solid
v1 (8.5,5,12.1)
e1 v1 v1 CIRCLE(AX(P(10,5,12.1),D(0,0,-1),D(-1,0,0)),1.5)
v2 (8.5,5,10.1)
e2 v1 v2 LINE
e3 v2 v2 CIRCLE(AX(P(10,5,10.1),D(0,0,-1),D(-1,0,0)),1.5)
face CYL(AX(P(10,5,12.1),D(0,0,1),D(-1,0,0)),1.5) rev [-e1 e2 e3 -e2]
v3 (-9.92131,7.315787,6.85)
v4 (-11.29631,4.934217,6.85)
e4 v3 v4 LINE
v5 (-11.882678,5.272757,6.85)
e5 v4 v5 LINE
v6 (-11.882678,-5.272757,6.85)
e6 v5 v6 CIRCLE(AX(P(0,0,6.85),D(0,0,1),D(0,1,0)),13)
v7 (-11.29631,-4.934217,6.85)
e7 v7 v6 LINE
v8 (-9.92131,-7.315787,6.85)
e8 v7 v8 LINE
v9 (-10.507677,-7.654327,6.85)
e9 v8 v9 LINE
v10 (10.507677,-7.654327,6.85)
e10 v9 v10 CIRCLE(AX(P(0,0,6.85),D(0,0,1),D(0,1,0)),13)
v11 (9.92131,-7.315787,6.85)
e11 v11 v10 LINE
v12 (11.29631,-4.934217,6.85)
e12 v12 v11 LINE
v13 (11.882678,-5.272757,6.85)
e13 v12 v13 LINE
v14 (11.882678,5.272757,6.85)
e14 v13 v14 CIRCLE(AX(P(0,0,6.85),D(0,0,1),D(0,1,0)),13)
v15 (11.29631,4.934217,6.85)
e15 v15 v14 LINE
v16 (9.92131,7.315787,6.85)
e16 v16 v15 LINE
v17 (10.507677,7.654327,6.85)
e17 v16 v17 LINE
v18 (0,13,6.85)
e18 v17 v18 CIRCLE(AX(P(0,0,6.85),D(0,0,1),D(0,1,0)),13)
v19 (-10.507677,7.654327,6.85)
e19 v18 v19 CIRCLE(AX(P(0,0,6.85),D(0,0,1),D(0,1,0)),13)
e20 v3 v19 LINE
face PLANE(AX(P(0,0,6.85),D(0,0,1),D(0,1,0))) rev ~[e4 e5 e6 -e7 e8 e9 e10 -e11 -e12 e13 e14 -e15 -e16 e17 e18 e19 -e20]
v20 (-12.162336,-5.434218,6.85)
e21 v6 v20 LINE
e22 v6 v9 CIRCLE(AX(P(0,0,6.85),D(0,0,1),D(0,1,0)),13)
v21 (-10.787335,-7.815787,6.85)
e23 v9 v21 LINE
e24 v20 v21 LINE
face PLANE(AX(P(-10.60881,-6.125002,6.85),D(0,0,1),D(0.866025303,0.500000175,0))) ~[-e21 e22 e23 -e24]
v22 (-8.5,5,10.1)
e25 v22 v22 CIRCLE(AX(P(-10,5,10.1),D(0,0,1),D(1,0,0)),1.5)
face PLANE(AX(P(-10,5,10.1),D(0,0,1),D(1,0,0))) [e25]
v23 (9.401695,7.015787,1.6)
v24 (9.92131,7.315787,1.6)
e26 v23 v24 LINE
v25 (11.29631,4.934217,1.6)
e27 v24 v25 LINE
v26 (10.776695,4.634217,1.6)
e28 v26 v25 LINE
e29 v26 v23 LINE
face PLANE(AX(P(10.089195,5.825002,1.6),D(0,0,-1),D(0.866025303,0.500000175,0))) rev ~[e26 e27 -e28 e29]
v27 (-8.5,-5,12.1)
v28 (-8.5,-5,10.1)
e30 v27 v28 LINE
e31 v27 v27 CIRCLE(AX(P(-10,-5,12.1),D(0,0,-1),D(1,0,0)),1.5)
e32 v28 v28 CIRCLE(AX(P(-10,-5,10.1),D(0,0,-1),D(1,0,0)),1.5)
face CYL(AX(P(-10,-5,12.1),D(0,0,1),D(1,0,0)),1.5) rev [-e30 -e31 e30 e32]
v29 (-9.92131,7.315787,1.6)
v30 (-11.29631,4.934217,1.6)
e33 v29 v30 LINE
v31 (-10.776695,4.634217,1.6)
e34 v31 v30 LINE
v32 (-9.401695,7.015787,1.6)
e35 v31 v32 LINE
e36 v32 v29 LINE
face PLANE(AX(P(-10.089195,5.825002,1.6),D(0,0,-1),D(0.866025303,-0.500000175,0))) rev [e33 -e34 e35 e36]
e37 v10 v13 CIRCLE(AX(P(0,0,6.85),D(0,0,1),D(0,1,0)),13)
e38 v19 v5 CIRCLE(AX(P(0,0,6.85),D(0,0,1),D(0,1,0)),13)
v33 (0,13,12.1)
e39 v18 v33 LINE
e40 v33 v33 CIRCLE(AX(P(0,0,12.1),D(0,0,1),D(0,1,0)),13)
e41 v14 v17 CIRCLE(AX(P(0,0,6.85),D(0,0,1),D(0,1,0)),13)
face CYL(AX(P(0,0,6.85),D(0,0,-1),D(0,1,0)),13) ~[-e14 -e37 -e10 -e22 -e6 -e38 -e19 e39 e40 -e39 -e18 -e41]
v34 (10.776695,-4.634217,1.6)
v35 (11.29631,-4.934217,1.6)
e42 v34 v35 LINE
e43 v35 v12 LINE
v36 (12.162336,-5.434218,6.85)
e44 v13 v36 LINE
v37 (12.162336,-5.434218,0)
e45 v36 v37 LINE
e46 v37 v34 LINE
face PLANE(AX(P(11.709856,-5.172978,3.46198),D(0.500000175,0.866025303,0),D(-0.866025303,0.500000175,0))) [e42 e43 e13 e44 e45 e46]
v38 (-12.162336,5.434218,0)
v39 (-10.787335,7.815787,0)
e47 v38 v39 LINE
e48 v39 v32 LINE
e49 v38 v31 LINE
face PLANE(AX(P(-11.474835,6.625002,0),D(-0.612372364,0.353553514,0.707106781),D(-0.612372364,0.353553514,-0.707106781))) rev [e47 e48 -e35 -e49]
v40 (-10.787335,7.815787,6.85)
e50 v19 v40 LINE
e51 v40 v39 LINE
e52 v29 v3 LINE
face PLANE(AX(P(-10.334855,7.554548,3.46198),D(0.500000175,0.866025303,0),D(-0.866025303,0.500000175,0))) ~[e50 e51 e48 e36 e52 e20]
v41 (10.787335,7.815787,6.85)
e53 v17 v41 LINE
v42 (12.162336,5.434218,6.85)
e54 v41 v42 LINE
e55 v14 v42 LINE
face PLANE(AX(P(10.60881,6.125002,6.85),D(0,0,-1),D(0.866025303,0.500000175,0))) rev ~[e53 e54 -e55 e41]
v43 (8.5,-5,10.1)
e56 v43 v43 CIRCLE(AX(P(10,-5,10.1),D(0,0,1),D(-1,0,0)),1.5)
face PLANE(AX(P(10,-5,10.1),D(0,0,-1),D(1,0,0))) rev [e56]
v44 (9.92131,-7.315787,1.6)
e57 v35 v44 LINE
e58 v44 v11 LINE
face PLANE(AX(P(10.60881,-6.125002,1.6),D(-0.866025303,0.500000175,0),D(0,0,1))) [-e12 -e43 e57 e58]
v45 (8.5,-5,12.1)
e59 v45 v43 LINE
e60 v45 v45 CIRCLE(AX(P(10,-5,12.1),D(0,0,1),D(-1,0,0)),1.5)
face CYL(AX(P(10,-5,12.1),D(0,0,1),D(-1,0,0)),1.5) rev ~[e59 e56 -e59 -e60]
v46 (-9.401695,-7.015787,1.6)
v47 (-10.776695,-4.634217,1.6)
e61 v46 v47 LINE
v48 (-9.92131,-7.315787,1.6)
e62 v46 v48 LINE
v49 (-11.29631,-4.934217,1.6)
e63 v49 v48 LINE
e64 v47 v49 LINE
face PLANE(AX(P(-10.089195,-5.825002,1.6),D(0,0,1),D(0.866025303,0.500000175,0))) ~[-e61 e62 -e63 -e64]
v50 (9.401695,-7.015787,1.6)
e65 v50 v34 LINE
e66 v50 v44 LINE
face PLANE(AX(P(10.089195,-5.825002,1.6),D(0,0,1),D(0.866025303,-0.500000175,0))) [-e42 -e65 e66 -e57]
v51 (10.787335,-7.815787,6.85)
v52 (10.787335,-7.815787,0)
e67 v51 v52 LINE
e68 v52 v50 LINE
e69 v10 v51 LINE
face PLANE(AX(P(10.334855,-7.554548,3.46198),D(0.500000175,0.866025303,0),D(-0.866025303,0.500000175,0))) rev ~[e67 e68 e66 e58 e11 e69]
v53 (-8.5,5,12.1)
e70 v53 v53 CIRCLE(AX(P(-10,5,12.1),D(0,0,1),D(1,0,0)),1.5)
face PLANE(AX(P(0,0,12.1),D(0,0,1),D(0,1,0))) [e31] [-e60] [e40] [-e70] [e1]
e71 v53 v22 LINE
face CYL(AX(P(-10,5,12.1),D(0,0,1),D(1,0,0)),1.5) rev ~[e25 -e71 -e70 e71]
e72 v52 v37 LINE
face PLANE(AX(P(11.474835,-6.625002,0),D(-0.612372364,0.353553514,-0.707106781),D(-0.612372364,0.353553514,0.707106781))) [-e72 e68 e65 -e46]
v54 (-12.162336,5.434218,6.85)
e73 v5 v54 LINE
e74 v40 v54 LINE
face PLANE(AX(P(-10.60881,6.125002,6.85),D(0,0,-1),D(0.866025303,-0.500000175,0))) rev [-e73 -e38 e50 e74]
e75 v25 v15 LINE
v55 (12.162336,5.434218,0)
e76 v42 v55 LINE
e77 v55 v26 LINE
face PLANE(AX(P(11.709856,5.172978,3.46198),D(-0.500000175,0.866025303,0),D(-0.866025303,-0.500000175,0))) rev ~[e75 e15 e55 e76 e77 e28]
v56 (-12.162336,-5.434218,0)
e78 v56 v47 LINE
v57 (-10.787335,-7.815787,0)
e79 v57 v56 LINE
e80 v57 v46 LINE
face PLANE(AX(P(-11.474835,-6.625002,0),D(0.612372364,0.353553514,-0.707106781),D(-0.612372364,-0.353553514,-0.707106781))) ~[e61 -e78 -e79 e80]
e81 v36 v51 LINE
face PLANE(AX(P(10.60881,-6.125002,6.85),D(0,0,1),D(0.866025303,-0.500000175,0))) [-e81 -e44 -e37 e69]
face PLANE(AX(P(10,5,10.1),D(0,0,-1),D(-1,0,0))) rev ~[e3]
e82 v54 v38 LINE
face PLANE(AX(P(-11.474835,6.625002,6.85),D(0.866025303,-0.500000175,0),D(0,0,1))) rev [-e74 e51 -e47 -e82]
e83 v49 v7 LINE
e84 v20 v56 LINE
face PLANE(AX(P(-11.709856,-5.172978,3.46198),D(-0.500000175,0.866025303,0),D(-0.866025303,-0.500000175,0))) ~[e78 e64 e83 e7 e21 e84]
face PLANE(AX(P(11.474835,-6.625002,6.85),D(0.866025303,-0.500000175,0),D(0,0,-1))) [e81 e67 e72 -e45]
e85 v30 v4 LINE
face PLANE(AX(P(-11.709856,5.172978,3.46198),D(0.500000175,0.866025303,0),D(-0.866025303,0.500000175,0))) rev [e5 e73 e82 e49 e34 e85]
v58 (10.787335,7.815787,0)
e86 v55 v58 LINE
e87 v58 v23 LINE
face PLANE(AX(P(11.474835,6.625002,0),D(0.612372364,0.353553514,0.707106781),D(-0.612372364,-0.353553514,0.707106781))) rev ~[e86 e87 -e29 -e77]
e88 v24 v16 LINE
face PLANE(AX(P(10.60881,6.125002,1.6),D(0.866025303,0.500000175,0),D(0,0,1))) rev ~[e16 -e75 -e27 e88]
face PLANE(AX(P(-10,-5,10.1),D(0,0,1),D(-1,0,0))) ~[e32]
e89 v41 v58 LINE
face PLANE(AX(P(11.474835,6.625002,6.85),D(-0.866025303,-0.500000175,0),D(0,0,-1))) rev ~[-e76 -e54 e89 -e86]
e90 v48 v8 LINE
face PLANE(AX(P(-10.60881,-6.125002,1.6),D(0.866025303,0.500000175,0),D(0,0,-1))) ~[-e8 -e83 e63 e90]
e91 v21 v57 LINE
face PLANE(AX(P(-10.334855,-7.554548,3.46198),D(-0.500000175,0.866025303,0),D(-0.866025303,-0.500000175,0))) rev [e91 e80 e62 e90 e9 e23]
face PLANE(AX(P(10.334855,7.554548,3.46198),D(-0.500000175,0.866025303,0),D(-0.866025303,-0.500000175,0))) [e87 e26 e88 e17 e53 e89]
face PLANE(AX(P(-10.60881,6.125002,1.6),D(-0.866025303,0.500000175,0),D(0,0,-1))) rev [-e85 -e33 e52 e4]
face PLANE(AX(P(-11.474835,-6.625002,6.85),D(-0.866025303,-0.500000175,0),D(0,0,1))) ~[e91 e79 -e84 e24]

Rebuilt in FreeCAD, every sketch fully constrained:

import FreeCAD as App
import Part
import Sketcher
Q = App.Units.Quantity


def add_polygon(sketch, points):
    """Adds a closed chain of lines whose ends are joined by coincident constraints."""
    first, n = sketch.GeometryCount, len(points)
    for a, b in zip(points, points[1:] + points[:1]):
        sketch.addGeometry(Part.LineSegment(App.Vector(*a, 0), App.Vector(*b, 0)), False)
    for i in range(n):
        sketch.addConstraint(Sketcher.Constraint("Coincident", first + i, 2, first + (i + 1) % n, 1))

doc = App.newDocument("Part")
body = doc.addObject("PartDesign::Body", "Body")

sketch1 = doc.addObject("Sketcher::SketchObject", "Sketch")
body.addObject(sketch1)
sketch1.AttachmentSupport = (doc.XY_Plane, [""])
sketch1.MapMode = "FlatFace"
sketch1.AttachmentOffset = App.Placement(App.Vector(0, 0, 6.85), App.Rotation())
sketch1.addGeometry(Part.Circle(App.Vector(0, 0, 0), App.Vector(0, 0, 1), 13), False)
sketch1.addConstraint([
    Sketcher.Constraint("Coincident", 0, 3, -1, 1),
    Sketcher.Constraint("Diameter", 0, 26.0),
])
pad1 = doc.addObject("PartDesign::Pad", "Pad")
body.addObject(pad1)
pad1.Profile = sketch1
pad1.Length = 5.25

sketch2 = doc.addObject("Sketcher::SketchObject", "Sketch001")
body.addObject(sketch2)
sketch2.AttachmentSupport = (doc.XY_Plane, [""])
sketch2.MapMode = "FlatFace"
sketch2.AttachmentOffset = App.Placement(App.Vector(0, 0, 12.1), App.Rotation())
sketch2.addGeometry(Part.Circle(App.Vector(-10, 5, 0), App.Vector(0, 0, 1), 1.5), False)
sketch2.addConstraint([
    Sketcher.Constraint("Diameter", 0, 3.0),
    Sketcher.Constraint("DistanceX", 0, 3, -1, 1, 10.0),
    Sketcher.Constraint("DistanceY", -1, 1, 0, 3, 5.0),
])
pocket1 = doc.addObject("PartDesign::Pocket", "Pocket")
body.addObject(pocket1)
pocket1.Profile = sketch2
pocket1.Length = 2

sketch3 = doc.addObject("Sketcher::SketchObject", "Sketch002")
body.addObject(sketch3)
sketch3.AttachmentSupport = (doc.XY_Plane, [""])
sketch3.MapMode = "FlatFace"
sketch3.AttachmentOffset = App.Placement(App.Vector(0, 0, 12.1), App.Rotation())
sketch3.addGeometry(Part.Circle(App.Vector(10, 5, 0), App.Vector(0, 0, 1), 1.5), False)
sketch3.addConstraint([
    Sketcher.Constraint("Diameter", 0, 3.0),
    Sketcher.Constraint("DistanceX", -1, 1, 0, 3, 10.0),
    Sketcher.Constraint("DistanceY", -1, 1, 0, 3, 5.0),
])
pocket2 = doc.addObject("PartDesign::Pocket", "Pocket001")
body.addObject(pocket2)
pocket2.Profile = sketch3
pocket2.Length = 2
doc.recompute()

mirrored = doc.addObject("PartDesign::Mirrored", "Mirrored")
body.addObject(mirrored)
mirrored.Originals = [pocket1, pocket2]
mirrored.MirrorPlane = (doc.XZ_Plane, [""])
body.Tip = mirrored

sketch4 = doc.addObject("Sketcher::SketchObject", "Sketch003")
body.addObject(sketch4)
sketch4.Placement = App.Placement(App.Vector(0, 0, 0), App.Rotation(App.Vector(0.866025303, 0.500000175, 0), App.Vector(0, 0, 1), App.Vector(0.500000175, -0.866025303, 0), "ZXY"))
add_polygon(sketch4, [(13.3, 0), (13.3, 6.9), (12.3, 6.9), (12.3, 1.6), (11.7, 1.6)])
sketch4.addConstraint([
    Sketcher.Constraint("Vertical", 0),
    Sketcher.Constraint("Horizontal", 1),
    Sketcher.Constraint("Vertical", 2),
    Sketcher.Constraint("Horizontal", 3),
    Sketcher.Constraint("PointOnObject", 4, 2, -1),
    Sketcher.Constraint("DistanceX", 1, 2, 1, 1, 1.0),
    Sketcher.Constraint("Angle", 4, Q("-45 deg")),
    Sketcher.Constraint("DistanceX", 3, 2, 3, 1, 0.6),
    Sketcher.Constraint("DistanceY", 0, 1, 0, 2, 6.85),
    Sketcher.Constraint("DistanceX", -1, 1, 0, 2, 13.25),
])
pad2 = doc.addObject("PartDesign::Pad", "Pad001")
body.addObject(pad2)
pad2.Profile = sketch4
pad2.Length = 2.75
pad2.Midplane = True

sketch5 = doc.addObject("Sketcher::SketchObject", "Sketch004")
body.addObject(sketch5)
sketch5.Placement = App.Placement(App.Vector(0, 0, 0), App.Rotation(App.Vector(0.866025303, -0.500000175, 0), App.Vector(0, 0, 1), App.Vector(-0.500000175, -0.866025303, 0), "ZXY"))
add_polygon(sketch5, [(13.3, 0), (13.3, 6.9), (12.3, 6.9), (12.3, 1.6), (11.7, 1.6)])
sketch5.addConstraint([
    Sketcher.Constraint("Vertical", 0),
    Sketcher.Constraint("Horizontal", 1),
    Sketcher.Constraint("Vertical", 2),
    Sketcher.Constraint("Horizontal", 3),
    Sketcher.Constraint("PointOnObject", 4, 2, -1),
    Sketcher.Constraint("DistanceX", 1, 2, 1, 1, 1.0),
    Sketcher.Constraint("Angle", 4, Q("-45 deg")),
    Sketcher.Constraint("DistanceX", 3, 2, 3, 1, 0.6),
    Sketcher.Constraint("DistanceY", 0, 1, 0, 2, 6.85),
    Sketcher.Constraint("DistanceX", -1, 1, 0, 2, 13.25),
])
pad3 = doc.addObject("PartDesign::Pad", "Pad002")
body.addObject(pad3)
pad3.Profile = sketch5
pad3.Length = 2.75
pad3.Midplane = True
doc.recompute()

mirrored2 = doc.addObject("PartDesign::Mirrored", "Mirrored001")
body.addObject(mirrored2)
mirrored2.Originals = [pad2, pad3]
mirrored2.MirrorPlane = (doc.YZ_Plane, [""])
body.Tip = mirrored2

doc.recompute()
